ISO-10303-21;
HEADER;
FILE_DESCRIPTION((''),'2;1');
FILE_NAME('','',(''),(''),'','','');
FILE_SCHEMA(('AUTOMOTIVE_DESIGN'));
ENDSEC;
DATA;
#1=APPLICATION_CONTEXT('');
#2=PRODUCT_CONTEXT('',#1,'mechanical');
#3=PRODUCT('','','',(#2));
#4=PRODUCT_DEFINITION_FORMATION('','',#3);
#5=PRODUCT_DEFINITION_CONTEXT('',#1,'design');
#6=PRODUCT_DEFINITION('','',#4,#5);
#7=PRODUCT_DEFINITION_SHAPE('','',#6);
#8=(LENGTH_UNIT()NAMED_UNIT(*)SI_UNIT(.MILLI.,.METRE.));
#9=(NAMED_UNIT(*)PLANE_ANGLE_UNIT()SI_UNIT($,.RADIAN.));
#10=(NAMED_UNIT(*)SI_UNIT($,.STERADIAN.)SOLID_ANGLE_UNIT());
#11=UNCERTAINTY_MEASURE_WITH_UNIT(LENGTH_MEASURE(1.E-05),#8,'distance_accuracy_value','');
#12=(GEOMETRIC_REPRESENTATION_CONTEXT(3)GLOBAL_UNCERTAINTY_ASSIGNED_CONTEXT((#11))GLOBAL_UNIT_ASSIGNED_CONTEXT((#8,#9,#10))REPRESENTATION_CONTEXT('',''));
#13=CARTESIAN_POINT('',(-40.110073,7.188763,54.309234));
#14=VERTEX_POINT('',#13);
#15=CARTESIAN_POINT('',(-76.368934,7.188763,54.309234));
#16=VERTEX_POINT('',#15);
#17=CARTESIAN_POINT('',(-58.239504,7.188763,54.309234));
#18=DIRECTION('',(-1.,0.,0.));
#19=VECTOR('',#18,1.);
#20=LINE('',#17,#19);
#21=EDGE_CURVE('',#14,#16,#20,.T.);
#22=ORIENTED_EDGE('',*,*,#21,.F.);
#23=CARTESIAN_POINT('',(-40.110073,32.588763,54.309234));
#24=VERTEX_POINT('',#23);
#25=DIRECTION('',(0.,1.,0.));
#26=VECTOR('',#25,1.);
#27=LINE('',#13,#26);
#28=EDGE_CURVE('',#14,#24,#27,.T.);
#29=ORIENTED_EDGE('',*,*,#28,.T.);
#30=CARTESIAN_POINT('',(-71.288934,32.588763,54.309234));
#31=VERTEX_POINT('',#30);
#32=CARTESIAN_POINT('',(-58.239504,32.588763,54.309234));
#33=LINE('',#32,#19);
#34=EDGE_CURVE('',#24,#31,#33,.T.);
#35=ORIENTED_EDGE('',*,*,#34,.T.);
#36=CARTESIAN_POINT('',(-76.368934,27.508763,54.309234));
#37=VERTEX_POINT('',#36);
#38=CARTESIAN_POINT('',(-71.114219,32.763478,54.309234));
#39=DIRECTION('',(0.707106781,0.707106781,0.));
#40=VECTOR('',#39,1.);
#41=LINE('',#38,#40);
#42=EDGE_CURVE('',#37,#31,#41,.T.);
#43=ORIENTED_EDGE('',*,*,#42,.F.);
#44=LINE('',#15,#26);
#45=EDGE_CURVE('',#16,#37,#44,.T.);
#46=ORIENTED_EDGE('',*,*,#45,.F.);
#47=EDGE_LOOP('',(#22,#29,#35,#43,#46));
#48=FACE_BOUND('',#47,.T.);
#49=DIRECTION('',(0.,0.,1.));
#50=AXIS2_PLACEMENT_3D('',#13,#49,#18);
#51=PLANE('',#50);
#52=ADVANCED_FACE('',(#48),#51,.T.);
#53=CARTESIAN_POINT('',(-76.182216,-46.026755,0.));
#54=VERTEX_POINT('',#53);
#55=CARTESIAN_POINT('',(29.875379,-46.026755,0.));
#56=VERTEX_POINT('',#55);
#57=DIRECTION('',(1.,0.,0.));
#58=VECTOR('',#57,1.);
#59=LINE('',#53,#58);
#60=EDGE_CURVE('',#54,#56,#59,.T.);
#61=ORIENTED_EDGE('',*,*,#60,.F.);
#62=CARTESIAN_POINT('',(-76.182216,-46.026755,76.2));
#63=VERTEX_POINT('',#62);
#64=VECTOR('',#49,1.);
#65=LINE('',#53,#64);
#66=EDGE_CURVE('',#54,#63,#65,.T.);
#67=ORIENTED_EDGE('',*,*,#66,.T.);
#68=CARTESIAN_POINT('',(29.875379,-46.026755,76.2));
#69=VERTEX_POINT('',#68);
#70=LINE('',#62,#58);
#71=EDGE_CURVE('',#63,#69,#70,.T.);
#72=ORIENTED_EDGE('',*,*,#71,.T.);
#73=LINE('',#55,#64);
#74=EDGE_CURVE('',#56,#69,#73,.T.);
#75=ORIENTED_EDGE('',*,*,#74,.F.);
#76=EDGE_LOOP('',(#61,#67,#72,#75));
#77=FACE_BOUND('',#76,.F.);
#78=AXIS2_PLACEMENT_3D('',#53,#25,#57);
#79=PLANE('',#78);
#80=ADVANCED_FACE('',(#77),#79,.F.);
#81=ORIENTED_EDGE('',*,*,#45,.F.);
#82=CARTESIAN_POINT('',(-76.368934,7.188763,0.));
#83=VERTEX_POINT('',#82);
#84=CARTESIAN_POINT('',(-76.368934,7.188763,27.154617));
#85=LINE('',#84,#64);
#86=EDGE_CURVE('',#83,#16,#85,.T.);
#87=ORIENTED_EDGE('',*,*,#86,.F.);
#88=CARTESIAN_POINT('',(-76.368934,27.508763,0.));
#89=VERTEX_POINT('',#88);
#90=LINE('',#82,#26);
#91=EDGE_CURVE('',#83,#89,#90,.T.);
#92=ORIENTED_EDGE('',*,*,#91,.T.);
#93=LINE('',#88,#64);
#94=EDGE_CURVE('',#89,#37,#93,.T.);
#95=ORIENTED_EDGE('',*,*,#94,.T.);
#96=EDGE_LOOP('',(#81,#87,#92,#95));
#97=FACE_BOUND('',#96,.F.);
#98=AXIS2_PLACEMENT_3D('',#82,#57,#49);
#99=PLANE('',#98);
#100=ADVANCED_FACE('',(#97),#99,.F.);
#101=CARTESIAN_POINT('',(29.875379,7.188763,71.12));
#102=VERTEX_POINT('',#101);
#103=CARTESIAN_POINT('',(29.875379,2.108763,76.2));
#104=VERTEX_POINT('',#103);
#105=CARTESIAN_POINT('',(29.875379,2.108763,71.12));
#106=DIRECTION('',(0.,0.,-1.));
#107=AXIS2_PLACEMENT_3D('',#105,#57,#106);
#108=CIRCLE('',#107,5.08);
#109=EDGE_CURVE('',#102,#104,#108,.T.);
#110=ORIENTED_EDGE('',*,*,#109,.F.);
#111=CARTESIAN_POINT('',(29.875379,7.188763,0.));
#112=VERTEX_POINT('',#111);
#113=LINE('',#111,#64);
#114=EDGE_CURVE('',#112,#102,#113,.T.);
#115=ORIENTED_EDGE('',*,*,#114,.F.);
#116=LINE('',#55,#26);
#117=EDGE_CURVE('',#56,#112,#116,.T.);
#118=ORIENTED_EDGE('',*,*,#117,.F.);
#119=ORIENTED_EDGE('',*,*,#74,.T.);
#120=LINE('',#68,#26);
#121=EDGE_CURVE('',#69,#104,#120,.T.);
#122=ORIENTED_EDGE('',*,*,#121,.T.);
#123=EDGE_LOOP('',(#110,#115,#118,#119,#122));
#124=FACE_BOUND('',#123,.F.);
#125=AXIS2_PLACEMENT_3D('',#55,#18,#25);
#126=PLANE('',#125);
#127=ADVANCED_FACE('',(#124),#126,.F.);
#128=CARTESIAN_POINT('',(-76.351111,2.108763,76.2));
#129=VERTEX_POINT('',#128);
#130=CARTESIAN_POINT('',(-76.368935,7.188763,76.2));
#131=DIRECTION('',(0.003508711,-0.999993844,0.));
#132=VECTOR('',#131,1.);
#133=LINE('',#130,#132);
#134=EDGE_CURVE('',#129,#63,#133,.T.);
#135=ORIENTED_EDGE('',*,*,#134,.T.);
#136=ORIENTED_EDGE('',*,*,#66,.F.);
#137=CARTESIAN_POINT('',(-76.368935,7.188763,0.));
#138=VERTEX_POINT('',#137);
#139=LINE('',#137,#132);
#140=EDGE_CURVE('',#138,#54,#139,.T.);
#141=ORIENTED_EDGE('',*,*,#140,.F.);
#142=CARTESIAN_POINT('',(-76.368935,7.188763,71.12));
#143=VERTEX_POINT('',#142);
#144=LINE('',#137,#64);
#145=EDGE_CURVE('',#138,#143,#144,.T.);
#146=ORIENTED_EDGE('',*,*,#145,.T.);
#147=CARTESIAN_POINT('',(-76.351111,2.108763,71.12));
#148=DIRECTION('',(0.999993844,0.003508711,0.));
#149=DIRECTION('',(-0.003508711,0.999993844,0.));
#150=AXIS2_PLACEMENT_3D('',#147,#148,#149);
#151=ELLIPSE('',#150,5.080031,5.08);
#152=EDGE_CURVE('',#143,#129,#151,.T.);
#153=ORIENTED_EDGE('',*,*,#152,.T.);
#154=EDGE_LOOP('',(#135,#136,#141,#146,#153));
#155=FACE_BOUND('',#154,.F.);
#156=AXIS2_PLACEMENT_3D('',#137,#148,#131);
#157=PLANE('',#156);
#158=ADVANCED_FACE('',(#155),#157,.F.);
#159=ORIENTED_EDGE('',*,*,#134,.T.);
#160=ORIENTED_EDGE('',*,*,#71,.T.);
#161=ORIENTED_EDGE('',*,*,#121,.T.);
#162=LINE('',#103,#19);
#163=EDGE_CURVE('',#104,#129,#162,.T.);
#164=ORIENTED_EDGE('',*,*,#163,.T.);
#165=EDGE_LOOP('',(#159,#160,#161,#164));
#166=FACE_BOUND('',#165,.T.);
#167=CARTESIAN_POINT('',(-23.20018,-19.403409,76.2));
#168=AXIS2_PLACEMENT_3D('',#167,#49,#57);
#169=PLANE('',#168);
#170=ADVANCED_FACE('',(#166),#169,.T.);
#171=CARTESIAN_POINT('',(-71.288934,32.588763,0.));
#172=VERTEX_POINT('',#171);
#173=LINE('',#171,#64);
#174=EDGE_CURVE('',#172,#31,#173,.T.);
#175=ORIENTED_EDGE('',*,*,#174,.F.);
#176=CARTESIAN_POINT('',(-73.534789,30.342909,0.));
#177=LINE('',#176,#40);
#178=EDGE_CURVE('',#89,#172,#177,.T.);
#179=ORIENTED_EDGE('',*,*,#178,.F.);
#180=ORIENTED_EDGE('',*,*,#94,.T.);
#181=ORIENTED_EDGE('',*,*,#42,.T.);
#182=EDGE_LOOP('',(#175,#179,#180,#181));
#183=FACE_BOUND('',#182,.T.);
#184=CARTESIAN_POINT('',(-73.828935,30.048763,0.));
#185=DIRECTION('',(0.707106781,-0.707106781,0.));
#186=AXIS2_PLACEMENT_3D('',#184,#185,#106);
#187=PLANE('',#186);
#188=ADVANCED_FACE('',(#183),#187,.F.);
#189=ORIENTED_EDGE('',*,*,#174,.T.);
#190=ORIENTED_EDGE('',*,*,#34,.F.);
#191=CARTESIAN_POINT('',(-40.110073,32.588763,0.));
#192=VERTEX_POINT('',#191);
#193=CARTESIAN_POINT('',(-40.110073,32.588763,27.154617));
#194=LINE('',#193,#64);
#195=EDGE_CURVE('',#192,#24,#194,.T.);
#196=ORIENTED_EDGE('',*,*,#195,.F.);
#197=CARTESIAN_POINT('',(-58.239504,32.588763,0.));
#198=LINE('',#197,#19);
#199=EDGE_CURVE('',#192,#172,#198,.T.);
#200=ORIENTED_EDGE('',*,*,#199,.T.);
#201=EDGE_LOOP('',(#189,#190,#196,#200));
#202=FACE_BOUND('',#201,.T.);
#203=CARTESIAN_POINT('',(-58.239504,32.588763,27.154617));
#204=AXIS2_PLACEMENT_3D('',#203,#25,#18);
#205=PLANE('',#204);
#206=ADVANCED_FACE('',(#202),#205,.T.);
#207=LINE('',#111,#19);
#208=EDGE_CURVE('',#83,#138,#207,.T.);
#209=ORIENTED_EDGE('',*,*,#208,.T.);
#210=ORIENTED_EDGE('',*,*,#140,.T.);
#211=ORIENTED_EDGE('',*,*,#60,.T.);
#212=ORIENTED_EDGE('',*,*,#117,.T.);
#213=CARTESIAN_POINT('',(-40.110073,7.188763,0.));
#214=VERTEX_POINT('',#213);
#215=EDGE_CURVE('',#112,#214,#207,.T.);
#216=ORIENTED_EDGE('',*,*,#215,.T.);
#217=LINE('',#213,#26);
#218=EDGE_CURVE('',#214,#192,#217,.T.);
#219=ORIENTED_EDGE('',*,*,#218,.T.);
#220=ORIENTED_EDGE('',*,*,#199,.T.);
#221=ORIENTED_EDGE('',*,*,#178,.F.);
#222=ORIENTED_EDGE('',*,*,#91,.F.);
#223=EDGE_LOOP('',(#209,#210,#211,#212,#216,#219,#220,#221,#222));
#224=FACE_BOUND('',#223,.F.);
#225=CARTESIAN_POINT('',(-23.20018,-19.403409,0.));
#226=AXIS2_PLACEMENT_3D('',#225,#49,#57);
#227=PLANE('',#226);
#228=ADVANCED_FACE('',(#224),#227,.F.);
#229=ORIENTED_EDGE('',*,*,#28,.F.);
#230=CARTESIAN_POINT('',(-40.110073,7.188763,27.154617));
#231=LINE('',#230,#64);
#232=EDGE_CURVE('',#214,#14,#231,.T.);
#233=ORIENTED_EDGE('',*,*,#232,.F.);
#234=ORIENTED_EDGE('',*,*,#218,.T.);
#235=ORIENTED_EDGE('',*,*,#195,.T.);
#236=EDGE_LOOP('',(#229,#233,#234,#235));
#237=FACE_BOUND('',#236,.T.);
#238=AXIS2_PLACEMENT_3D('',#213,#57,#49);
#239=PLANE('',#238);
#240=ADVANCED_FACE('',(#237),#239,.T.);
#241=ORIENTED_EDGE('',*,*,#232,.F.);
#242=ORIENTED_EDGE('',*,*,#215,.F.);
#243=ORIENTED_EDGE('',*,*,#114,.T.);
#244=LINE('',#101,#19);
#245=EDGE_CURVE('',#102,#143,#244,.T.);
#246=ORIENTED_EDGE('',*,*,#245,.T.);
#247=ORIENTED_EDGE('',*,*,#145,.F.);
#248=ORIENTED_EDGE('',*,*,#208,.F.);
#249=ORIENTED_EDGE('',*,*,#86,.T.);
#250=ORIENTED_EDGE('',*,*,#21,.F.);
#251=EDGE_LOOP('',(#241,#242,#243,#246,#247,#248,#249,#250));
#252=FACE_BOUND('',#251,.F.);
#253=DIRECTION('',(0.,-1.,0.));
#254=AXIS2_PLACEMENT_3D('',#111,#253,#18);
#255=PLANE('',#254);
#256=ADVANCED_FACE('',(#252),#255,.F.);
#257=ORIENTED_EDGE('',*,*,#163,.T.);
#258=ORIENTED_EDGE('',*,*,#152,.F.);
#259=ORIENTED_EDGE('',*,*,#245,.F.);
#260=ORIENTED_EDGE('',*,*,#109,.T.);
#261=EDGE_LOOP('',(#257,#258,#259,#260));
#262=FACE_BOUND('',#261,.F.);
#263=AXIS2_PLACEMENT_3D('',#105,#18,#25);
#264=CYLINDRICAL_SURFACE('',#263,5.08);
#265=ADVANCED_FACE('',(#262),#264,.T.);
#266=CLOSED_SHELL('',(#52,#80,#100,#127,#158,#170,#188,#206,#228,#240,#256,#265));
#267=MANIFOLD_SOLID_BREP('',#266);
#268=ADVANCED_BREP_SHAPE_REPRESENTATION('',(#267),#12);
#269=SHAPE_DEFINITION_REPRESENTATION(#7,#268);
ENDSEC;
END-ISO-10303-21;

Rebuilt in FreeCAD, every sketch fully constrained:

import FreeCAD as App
import Part
import Sketcher
Q = App.Units.Quantity


def edges_at(feature, points):
    """Names of the edges that pass closest to the given points."""
    edges = feature.Shape.Edges
    near = lambda p: min(range(len(edges)), key=lambda i: edges[i].distToShape(Part.Vertex(*p))[0])
    return sorted({f"Edge{near(p) + 1}" for p in points})


def add_polygon(sketch, points):
    """Adds a closed chain of lines whose ends are joined by coincident constraints."""
    first, n = sketch.GeometryCount, len(points)
    for a, b in zip(points, points[1:] + points[:1]):
        sketch.addGeometry(Part.LineSegment(App.Vector(*a, 0), App.Vector(*b, 0)), False)
    for i in range(n):
        sketch.addConstraint(Sketcher.Constraint("Coincident", first + i, 2, first + (i + 1) % n, 1))

doc = App.newDocument("Part")
body = doc.addObject("PartDesign::Body", "Body")

# Sketch on XY plane
sketch1 = doc.addObject("Sketcher::SketchObject", "Sketch")
body.addObject(sketch1)
sketch1.AttachmentSupport = (doc.XY_Plane, [""])
sketch1.MapMode = "FlatFace"
add_polygon(sketch1, [(30, 7), (-76, 7), (-76, -46), (30, -46)])  # lines 0-3
sketch1.addConstraint([
    Sketcher.Constraint("Horizontal", 0),
    Sketcher.Constraint("Horizontal", 2),
    Sketcher.Constraint("Vertical", 3),
    Sketcher.Constraint("DistanceX", 1, 2, -1, 1, Q("2.9992998 in")),
    Sketcher.Constraint("DistanceY", 3, 1, 3, 2, 53.215518),
    Sketcher.Constraint("DistanceX", 0, 2, 0, 1, 106.244314),
    Sketcher.Constraint("DistanceX", 2, 1, 2, 2, 106.057595),
    Sketcher.Constraint("DistanceY", -1, 1, 0, 2, 7.188763),
])
pad1 = doc.addObject("PartDesign::Pad", "Pad")
body.addObject(pad1)
pad1.Profile = sketch1
pad1.Length = Q("3 in")

# Sketch on XZ plane
sketch2 = doc.addObject("Sketcher::SketchObject", "Sketch001")
body.addObject(sketch2)
sketch2.AttachmentSupport = (doc.XZ_Plane, [""])
sketch2.MapMode = "FlatFace"
sketch2.AttachmentOffset = App.Placement(App.Vector(0, 0, -7.188763), App.Rotation())
add_polygon(sketch2, [(-40, 54), (-40, 0), (-76, 0), (-76, 54)])  # lines 0-3
sketch2.addConstraint([
    Sketcher.Constraint("Vertical", 0),
    Sketcher.Constraint("Horizontal", 1),
    Sketcher.Constraint("Vertical", 2),
    Sketcher.Constraint("Horizontal", 3),
    Sketcher.Constraint("PointOnObject", 0, 2, -1),
    Sketcher.Constraint("DistanceX", 1, 2, 1, 1, 36.258861),
    Sketcher.Constraint("DistanceY", 0, 2, 0, 1, 54.309234),
    Sketcher.Constraint("DistanceX", 0, 2, -1, 1, 40.110073),
])
pad2 = doc.addObject("PartDesign::Pad", "Pad001")
body.addObject(pad2)
pad2.Profile = sketch2
pad2.Length = Q("1 in")
pad2.Reversed = True
doc.recompute()

chamfer = doc.addObject("PartDesign::Chamfer", "Chamfer")
body.addObject(chamfer)
chamfer.Base = (pad2, edges_at(pad2, [(-76.369, 32.589, 27.155)]))
chamfer.Size = Q("0.2 in")
doc.recompute()

fillet = doc.addObject("PartDesign::Fillet", "Fillet")
body.addObject(fillet)
fillet.Base = (chamfer, edges_at(chamfer, [(-23.247, 7.189, 76.2)]))
fillet.Radius = Q("0.2 in")

doc.recompute()
